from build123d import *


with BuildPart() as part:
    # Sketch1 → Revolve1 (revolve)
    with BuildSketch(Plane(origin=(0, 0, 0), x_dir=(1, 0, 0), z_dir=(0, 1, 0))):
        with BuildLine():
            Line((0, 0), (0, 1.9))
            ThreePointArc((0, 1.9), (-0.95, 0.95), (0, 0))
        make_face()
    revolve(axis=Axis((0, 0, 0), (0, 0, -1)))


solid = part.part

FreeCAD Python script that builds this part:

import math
import FreeCAD as App
import Part
import Sketcher

doc = App.newDocument("Part")
params = doc.addObject("Spreadsheet::Sheet", "Params")
for row, (alias, value) in enumerate([
    ("sketch1_radius", "0.95 mm"),
    ("revolution_angle", "360 deg"),
], start=1):
    params.set(f"A{row}", alias)
    params.set(f"B{row}", "=" + value)
    params.setAlias(f"B{row}", alias)

body = doc.addObject("PartDesign::Body", "Body")

sketch1 = body.newObject("Sketcher::SketchObject", "Sketch")
sketch1.AttachmentSupport = (doc.getObject("XZ_Plane"), [""])
sketch1.MapMode = "FlatFace"
sketch1.addGeometry([
    Part.LineSegment(App.Vector(0, 0, 0), App.Vector(0, -1.9, 0)),
    Part.ArcOfCircle(Part.Circle(App.Vector(0, -0.9, 0), App.Vector(0, 0, 1), 0.9), math.radians(90), math.radians(270)),
], False)
sketch1.addConstraint([
    Sketcher.Constraint("Coincident", 0, 1, 1, 1),
    Sketcher.Constraint("Coincident", 1, 2, 0, 2),
    Sketcher.Constraint("Vertical", 0),
    Sketcher.Constraint("Coincident", 0, 1, -1, 1),
    Sketcher.Constraint("PointOnObject", 1, 3, -2),
    Sketcher.Constraint("Radius", 1, 0.95),
])
sketch1.setExpression("Constraints[5]", "Params.sketch1_radius")
revolution = body.newObject("PartDesign::Revolution", "Revolution")
revolution.Profile = sketch1
revolution.ReferenceAxis = (sketch1, ["V_Axis"])
revolution.setExpression("Angle", "Params.revolution_angle")

doc.recompute()
